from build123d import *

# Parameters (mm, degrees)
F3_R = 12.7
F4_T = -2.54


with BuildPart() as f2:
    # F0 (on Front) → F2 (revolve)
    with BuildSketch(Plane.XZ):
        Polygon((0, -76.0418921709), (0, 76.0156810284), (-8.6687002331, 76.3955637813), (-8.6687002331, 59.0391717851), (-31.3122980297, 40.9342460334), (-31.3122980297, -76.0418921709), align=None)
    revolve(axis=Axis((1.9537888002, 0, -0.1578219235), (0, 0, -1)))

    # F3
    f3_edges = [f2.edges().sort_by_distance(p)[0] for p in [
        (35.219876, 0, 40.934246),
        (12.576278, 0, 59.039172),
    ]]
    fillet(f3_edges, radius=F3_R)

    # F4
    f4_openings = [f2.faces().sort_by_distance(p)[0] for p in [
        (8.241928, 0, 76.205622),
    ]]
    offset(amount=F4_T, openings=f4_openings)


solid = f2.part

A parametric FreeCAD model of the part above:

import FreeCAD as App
import Part
import Sketcher
from FreeCAD import Vector
Q = App.Units.Quantity


def edges_at(feature, points):
    """Names of the edges that pass closest to the given points."""
    edges = feature.Shape.Edges
    near = lambda p: min(range(len(edges)), key=lambda i: edges[i].distToShape(Part.Vertex(*p))[0])
    return sorted({f"Edge{near(p) + 1}" for p in points})


def faces_at(feature, points):
    """Names of the faces that lie closest to the given points."""
    faces = feature.Shape.Faces
    near = lambda p: min(range(len(faces)), key=lambda i: faces[i].distToShape(Part.Vertex(*p))[0])
    return sorted({f"Face{near(p) + 1}" for p in points})

doc = App.newDocument("Part")
body = doc.addObject("PartDesign::Body", "Body")

sketch1 = body.newObject("Sketcher::SketchObject", "Sketch")
sketch1.AttachmentSupport = (doc.getObject("XZ_Plane"), [""])
sketch1.MapMode = "FlatFace"
sketch1.addGeometry([
    Part.LineSegment(Vector(0, -76.041892, 0), Vector(0, 76.015681, 0)),
    Part.LineSegment(Vector(0, 76.015681, 0), Vector(-8.6687, 76.395564, 0)),
    Part.LineSegment(Vector(-8.6687, 76.395564, 0), Vector(-8.6687, 59.039172, 0)),
    Part.LineSegment(Vector(-8.6687, 59.039172, 0), Vector(-31.312298, 40.934246, 0)),
    Part.LineSegment(Vector(-31.312298, 40.934246, 0), Vector(-31.312298, -76.041892, 0)),
    Part.LineSegment(Vector(-31.312298, -76.041892, 0), Vector(0, -76.041892, 0)),
], False)
sketch1.addGeometry(Part.LineSegment(Vector(1.953789, 76.395564, 0), Vector(1.953789, -76.041892, 0)), True)
sketch1.addConstraint([
    Sketcher.Constraint("Coincident", 0, 2, 1, 1),
    Sketcher.Constraint("Coincident", 1, 2, 2, 1),
    Sketcher.Constraint("Coincident", 2, 2, 3, 1),
    Sketcher.Constraint("Coincident", 3, 2, 4, 1),
    Sketcher.Constraint("Coincident", 4, 2, 5, 1),
    Sketcher.Constraint("Coincident", 5, 2, 0, 1),
    Sketcher.Constraint("Vertical", 0),
    Sketcher.Constraint("Vertical", 2),
    Sketcher.Constraint("Vertical", 4),
    Sketcher.Constraint("Horizontal", 5),
    Sketcher.Constraint("Vertical", 6),
    Sketcher.Constraint("PointOnObject", 0, 2, -2),
    Sketcher.Constraint("Horizontal", 1, 2, 6, 1),
    Sketcher.Constraint("Horizontal", 5, 2, 6, 2),
    Sketcher.Constraint("DistanceX", 5, 1, 5, 2, Q("31.312298 mm")),
    Sketcher.Constraint("DistanceY", 2, 2, 2, 1, Q("17.356392 mm")),
    Sketcher.Constraint("DistanceY", 4, 2, 4, 1, Q("116.976138 mm")),
    Sketcher.Constraint("DistanceX", 1, 2, -1, 1, Q("8.6687 mm")),
    Sketcher.Constraint("Distance", 1, Q("8.67702 mm")),
    Sketcher.Constraint("DistanceY", 0, 1, 0, 2, Q("152.057573 mm")),
    Sketcher.Constraint("DistanceY", -1, 1, 0, 2, Q("76.015681 mm")),
    Sketcher.Constraint("DistanceX", -1, 1, 6, 1, Q("1.953789 mm")),
])
revolution = body.newObject("PartDesign::Revolution", "Revolution")
revolution.Profile = sketch1
revolution.ReferenceAxis = (sketch1, ["Axis0"])
revolution.Angle = 360
doc.recompute()

fillet = body.newObject("PartDesign::Fillet", "Fillet")
fillet.Base = (revolution, edges_at(revolution, [(35.22, 0, 40.934), (12.576, 0, 59.039)]))
fillet.Radius = Q("0.5 in")
doc.recompute()

thickness = body.newObject("PartDesign::Thickness", "Thickness")
thickness.Base = (fillet, faces_at(fillet, [(8.242, 0, 76.206)]))
thickness.Value = Q("0.1 in")
thickness.Reversed = True
thickness.Join = "Arc"

doc.recompute()
